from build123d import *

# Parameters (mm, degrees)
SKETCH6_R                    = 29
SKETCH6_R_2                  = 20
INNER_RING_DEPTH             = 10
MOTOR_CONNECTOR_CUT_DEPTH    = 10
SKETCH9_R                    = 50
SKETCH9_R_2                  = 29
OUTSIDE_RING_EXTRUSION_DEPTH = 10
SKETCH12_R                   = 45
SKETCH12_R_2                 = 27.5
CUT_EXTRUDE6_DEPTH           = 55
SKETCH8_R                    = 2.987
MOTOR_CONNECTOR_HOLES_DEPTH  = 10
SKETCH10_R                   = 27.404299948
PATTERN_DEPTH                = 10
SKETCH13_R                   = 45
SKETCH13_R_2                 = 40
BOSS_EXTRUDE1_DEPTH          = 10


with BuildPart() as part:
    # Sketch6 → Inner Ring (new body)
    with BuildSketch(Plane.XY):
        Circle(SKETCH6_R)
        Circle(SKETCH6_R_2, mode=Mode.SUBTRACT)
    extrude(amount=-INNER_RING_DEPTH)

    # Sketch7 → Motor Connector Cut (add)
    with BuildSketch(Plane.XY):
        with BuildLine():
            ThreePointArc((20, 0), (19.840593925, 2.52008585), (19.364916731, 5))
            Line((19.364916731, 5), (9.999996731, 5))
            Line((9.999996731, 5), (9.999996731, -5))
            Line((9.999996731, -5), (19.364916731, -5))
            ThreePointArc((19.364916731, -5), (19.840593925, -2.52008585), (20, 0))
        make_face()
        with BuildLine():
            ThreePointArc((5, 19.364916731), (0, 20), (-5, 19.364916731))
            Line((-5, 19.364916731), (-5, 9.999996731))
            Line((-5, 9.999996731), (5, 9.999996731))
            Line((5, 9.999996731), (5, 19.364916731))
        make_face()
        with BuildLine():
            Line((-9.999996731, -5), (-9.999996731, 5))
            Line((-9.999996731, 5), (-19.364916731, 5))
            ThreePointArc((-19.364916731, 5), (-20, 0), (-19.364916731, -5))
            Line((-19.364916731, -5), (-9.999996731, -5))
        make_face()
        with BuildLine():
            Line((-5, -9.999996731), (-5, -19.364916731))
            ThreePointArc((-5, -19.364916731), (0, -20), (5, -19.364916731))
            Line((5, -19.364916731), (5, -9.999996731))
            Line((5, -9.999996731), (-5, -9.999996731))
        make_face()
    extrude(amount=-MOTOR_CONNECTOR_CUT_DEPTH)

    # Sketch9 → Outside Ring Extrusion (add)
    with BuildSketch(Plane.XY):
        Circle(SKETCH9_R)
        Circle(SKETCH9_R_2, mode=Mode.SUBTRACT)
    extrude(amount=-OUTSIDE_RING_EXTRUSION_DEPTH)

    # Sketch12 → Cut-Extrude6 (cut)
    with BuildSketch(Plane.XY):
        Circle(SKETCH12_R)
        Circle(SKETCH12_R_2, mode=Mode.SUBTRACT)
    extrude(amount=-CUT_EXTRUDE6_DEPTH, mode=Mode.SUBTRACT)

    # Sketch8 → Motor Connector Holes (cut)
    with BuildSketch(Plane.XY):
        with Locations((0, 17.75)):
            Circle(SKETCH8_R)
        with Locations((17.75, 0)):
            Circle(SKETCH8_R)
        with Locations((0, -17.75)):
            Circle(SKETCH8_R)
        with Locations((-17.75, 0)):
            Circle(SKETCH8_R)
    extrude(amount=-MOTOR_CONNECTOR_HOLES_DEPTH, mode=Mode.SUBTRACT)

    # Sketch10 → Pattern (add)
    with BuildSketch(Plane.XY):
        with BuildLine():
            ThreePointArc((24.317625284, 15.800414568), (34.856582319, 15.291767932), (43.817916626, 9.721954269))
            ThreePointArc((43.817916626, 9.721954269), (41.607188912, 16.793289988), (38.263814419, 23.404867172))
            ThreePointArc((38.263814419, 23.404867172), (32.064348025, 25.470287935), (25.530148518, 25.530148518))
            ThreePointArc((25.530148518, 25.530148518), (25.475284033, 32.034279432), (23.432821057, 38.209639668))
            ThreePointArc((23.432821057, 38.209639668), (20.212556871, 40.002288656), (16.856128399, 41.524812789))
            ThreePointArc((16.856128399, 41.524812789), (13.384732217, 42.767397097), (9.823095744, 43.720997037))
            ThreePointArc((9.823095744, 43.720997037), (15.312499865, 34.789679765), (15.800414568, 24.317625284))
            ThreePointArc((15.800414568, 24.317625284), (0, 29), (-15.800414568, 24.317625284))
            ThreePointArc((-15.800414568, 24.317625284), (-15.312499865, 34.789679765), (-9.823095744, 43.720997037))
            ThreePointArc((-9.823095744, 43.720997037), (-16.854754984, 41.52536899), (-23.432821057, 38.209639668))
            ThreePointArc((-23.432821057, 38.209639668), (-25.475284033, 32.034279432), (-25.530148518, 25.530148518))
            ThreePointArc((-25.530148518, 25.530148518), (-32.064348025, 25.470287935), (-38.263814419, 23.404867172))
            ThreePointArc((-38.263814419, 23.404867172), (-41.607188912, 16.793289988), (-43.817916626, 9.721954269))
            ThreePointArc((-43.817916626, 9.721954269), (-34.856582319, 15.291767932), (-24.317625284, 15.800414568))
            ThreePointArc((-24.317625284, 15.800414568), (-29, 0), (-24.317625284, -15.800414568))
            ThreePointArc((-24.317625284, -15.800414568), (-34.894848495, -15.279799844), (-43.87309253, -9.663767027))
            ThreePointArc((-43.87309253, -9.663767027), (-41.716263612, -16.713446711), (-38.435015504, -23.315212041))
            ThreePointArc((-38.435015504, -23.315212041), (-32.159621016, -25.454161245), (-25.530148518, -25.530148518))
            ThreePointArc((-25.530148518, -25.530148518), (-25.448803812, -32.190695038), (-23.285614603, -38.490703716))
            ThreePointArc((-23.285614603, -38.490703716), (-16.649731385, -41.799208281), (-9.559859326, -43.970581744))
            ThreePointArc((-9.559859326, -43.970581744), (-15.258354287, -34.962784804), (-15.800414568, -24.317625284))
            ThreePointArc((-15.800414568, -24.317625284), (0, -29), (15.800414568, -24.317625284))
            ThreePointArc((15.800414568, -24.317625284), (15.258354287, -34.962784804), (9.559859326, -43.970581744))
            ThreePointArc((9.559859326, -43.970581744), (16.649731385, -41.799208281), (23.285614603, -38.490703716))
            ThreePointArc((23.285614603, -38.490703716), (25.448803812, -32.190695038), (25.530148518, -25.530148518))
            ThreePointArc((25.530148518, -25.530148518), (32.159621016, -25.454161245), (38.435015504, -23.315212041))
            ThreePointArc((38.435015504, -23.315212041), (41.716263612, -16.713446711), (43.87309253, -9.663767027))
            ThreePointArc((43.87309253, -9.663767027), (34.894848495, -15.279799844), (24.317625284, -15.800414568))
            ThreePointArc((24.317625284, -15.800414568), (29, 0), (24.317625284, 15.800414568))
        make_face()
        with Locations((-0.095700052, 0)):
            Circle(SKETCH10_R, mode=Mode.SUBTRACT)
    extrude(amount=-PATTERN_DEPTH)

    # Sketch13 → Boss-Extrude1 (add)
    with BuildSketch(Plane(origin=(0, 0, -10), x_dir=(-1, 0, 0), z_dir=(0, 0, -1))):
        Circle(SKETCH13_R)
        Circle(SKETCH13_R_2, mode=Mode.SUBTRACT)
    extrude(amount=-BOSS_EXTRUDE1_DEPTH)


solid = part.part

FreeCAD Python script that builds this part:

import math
import FreeCAD as App
import Part
import Sketcher
from FreeCAD import Vector
Q = App.Units.Quantity

doc = App.newDocument("Part")
body = doc.addObject("PartDesign::Body", "Body")
body.AllowCompound = True

# Sketch on XY plane
sketch1 = body.newObject("Sketcher::SketchObject", "Sketch")
sketch1.AttachmentSupport = (doc.getObject("XY_Plane"), [""])
sketch1.MapMode = "FlatFace"
sketch1.addGeometry([
    Part.Circle(Vector(0, 0, 0), Vector(0, 0, 1), 29),
    Part.Circle(Vector(0, 0, 0), Vector(0, 0, 1), 20),
], False)
sketch1.addConstraint([
    Sketcher.Constraint("Coincident", 0, 3, -1, 1),
    Sketcher.Constraint("Coincident", 1, 3, -1, 1),
    Sketcher.Constraint("Diameter", 0, Q("58 mm")),
    Sketcher.Constraint("Diameter", 1, Q("40 mm")),
])
pad1 = body.newObject("PartDesign::Pad", "Pad")
pad1.Profile = sketch1
pad1.Length = 10
pad1.Reversed = True

# Sketch on XY plane
sketch2 = body.newObject("Sketcher::SketchObject", "Sketch001")
sketch2.AttachmentSupport = (doc.getObject("XY_Plane"), [""])
sketch2.MapMode = "FlatFace"
sketch2.addGeometry([
    Part.ArcOfCircle(Part.Circle(Vector(0, 0, 0), Vector(0, 0, 1), 20), math.radians(0), math.radians(14.48)),  # 0
    Part.LineSegment(Vector(19, 5, 0), Vector(10, 5, 0)),  # 1
    Part.LineSegment(Vector(10, 5, 0), Vector(10, -5, 0)),  # 2
    Part.LineSegment(Vector(10, -5, 0), Vector(19, -5, 0)),  # 3
    Part.ArcOfCircle(Part.Circle(Vector(0, 0, 0), Vector(0, 0, 1), 20), math.radians(-14.48), math.radians(0)),  # 4
    Part.ArcOfCircle(Part.Circle(Vector(0, 0, 0), Vector(0, 0, 1), 20), math.radians(76), math.radians(104)),  # 5
    Part.LineSegment(Vector(-5, 19, 0), Vector(-5, 10, 0)),  # 6
    Part.LineSegment(Vector(-5, 10, 0), Vector(5, 10, 0)),  # 7
    Part.LineSegment(Vector(5, 10, 0), Vector(5, 19, 0)),  # 8
    Part.LineSegment(Vector(-10, -5, 0), Vector(-10, 5, 0)),  # 9
    Part.LineSegment(Vector(-10, 5, 0), Vector(-19, 5, 0)),  # 10
    Part.ArcOfCircle(Part.Circle(Vector(0, 0, 0), Vector(0, 0, 1), 20), math.radians(166), math.radians(194)),  # 11
    Part.LineSegment(Vector(-19, -5, 0), Vector(-10, -5, 0)),  # 12
    Part.LineSegment(Vector(-5, -10, 0), Vector(-5, -19, 0)),  # 13
    Part.ArcOfCircle(Part.Circle(Vector(0, 0, 0), Vector(0, 0, 1), 20), math.radians(-104), math.radians(-76)),  # 14
    Part.LineSegment(Vector(5, -19, 0), Vector(5, -10, 0)),  # 15
    Part.LineSegment(Vector(5, -10, 0), Vector(-5, -10, 0)),  # 16
], False)
sketch2.addConstraint([
    Sketcher.Constraint("Coincident", 0, 2, 1, 1),
    Sketcher.Constraint("Coincident", 1, 2, 2, 1),
    Sketcher.Constraint("Coincident", 2, 2, 3, 1),
    Sketcher.Constraint("Coincident", 3, 2, 4, 1),
    Sketcher.Constraint("Tangent", 4, 2, 0, 1),
    Sketcher.Constraint("Coincident", 5, 2, 6, 1),
    Sketcher.Constraint("Coincident", 6, 2, 7, 1),
    Sketcher.Constraint("Coincident", 7, 2, 8, 1),
    Sketcher.Constraint("Coincident", 8, 2, 5, 1),
    Sketcher.Constraint("Coincident", 9, 2, 10, 1),
    Sketcher.Constraint("Coincident", 10, 2, 11, 1),
    Sketcher.Constraint("Coincident", 11, 2, 12, 1),
    Sketcher.Constraint("Coincident", 12, 2, 9, 1),
    Sketcher.Constraint("Coincident", 13, 2, 14, 1),
    Sketcher.Constraint("Coincident", 14, 2, 15, 1),
    Sketcher.Constraint("Coincident", 15, 2, 16, 1),
    Sketcher.Constraint("Coincident", 16, 2, 13, 1),
    Sketcher.Constraint("Horizontal", 1),
    Sketcher.Constraint("Vertical", 2),
    Sketcher.Constraint("Horizontal", 3),
    Sketcher.Constraint("Vertical", 6),
    Sketcher.Constraint("Horizontal", 7),
    Sketcher.Constraint("Vertical", 8),
    Sketcher.Constraint("Vertical", 9),
    Sketcher.Constraint("Horizontal", 10),
    Sketcher.Constraint("Horizontal", 12),
    Sketcher.Constraint("Vertical", 13),
    Sketcher.Constraint("Vertical", 15),
    Sketcher.Constraint("Horizontal", 16),
    Sketcher.Constraint("Coincident", 0, 3, -1, 1),
    Sketcher.Constraint("Coincident", 5, 3, -1, 1),
    Sketcher.Constraint("Coincident", 11, 3, -1, 1),
    Sketcher.Constraint("Coincident", 14, 3, -1, 1),
    Sketcher.Constraint("Equal", 0, 4),
    Sketcher.Constraint("Equal", 4, 5),
    Sketcher.Constraint("Equal", 5, 11),
    Sketcher.Constraint("Equal", 11, 14),
    Sketcher.Constraint("Symmetric", 2, 2, 9, 2, -1, 1),
    Sketcher.Constraint("Symmetric", 6, 2, 15, 2, -1, 1),
    Sketcher.Constraint("PointOnObject", 4, 2, -1),
    Sketcher.Constraint("Horizontal", 5, 2, 8, 2),
    Sketcher.Constraint("Horizontal", 1, 2, 9, 2),
    Sketcher.Constraint("Horizontal", 3, 2, 11, 2),
    Sketcher.Constraint("Horizontal", 13, 2, 14, 2),
    Sketcher.Constraint("Equal", 16, 2),
    Sketcher.Constraint("Equal", 12, 6),
    Sketcher.Constraint("Radius", 0, Q("20 mm")),
    Sketcher.Constraint("DistanceX", 7, 1, 7, 2, Q("10 mm")),
    Sketcher.Constraint("DistanceX", 1, 2, 1, 1, Q("9.36492 mm")),
])
pad2 = body.newObject("PartDesign::Pad", "Pad001")
pad2.Profile = sketch2
pad2.Length = 10
pad2.Reversed = True

# Sketch on XY plane
sketch3 = body.newObject("Sketcher::SketchObject", "Sketch002")
sketch3.AttachmentSupport = (doc.getObject("XY_Plane"), [""])
sketch3.MapMode = "FlatFace"
sketch3.addGeometry([
    Part.Circle(Vector(0, 0, 0), Vector(0, 0, 1), 50),
    Part.Circle(Vector(0, 0, 0), Vector(0, 0, 1), 29),
], False)
sketch3.addConstraint([
    Sketcher.Constraint("Coincident", 0, 3, -1, 1),
    Sketcher.Constraint("Coincident", 1, 3, -1, 1),
    Sketcher.Constraint("Diameter", 0, Q("100 mm")),
    Sketcher.Constraint("Diameter", 1, Q("58 mm")),
])
pad3 = body.newObject("PartDesign::Pad", "Pad002")
pad3.Profile = sketch3
pad3.Length = 10
pad3.Reversed = True

# Sketch on XY plane
sketch4 = body.newObject("Sketcher::SketchObject", "Sketch003")
sketch4.AttachmentSupport = (doc.getObject("XY_Plane"), [""])
sketch4.MapMode = "FlatFace"
sketch4.addGeometry([
    Part.Circle(Vector(0, 0, 0), Vector(0, 0, 1), 45),
    Part.Circle(Vector(0, 0, 0), Vector(0, 0, 1), 28),
], False)
sketch4.addConstraint([
    Sketcher.Constraint("Coincident", 0, 3, -1, 1),
    Sketcher.Constraint("Coincident", 1, 3, -1, 1),
    Sketcher.Constraint("Diameter", 0, Q("90 mm")),
    Sketcher.Constraint("Diameter", 1, Q("55 mm")),
])
pocket1 = body.newObject("PartDesign::Pocket", "Pocket")
pocket1.Profile = sketch4
pocket1.Length = 55

# Sketch on XY plane
sketch5 = body.newObject("Sketcher::SketchObject", "Sketch004")
sketch5.AttachmentSupport = (doc.getObject("XY_Plane"), [""])
sketch5.MapMode = "FlatFace"
sketch5.addGeometry([
    Part.Circle(Vector(0, 17.8, 0), Vector(0, 0, 1), 3),
    Part.Circle(Vector(17.8, 0, 0), Vector(0, 0, 1), 3),
    Part.Circle(Vector(0, -17.8, 0), Vector(0, 0, 1), 3),
    Part.Circle(Vector(-17.8, 0, 0), Vector(0, 0, 1), 3),
], False)
sketch5.addConstraint([
    Sketcher.Constraint("Equal", 0, 1),
    Sketcher.Constraint("Equal", 1, 2),
    Sketcher.Constraint("Equal", 2, 3),
    Sketcher.Constraint("Symmetric", 0, 3, 2, 3, -1, 1),
    Sketcher.Constraint("Symmetric", 1, 3, 3, 3, -1, 1),
    Sketcher.Constraint("PointOnObject", 0, 3, -2),
    Sketcher.Constraint("PointOnObject", 1, 3, -1),
    Sketcher.Constraint("Diameter", 0, Q("5.974 mm")),
    Sketcher.Constraint("DistanceY", 2, 3, 0, 3, Q("35.5 mm")),
    Sketcher.Constraint("DistanceX", 3, 3, 1, 3, Q("35.5 mm")),
])
pocket2 = body.newObject("PartDesign::Pocket", "Pocket001")
pocket2.Profile = sketch5
pocket2.Length = 10

# Sketch on XY plane
sketch6 = body.newObject("Sketcher::SketchObject", "Sketch005")
sketch6.AttachmentSupport = (doc.getObject("XY_Plane"), [""])
sketch6.MapMode = "FlatFace"
sketch6.addGeometry([
    Part.ArcOfCircle(Part.Circle(Vector(29, -5, 0), Vector(0, 0, 1), 21), math.radians(44), math.radians(102)),  # 0
    Part.ArcOfCircle(Part.Circle(Vector(0, 0, 0), Vector(0, 0, 1), 45), math.radians(12.63), math.radians(31.56)),  # 1
    Part.ArcOfCircle(Part.Circle(Vector(29, 5, 0), Vector(0, 0, 1), 21), math.radians(63), math.radians(98)),  # 2
    Part.ArcOfCircle(Part.Circle(Vector(5, 29, 0), Vector(0, 0, 1), 21), math.radians(-8), math.radians(27)),  # 3
    Part.ArcOfCircle(Part.Circle(Vector(0, 0, 0), Vector(0, 0, 1), 45), math.radians(58.54), math.radians(67.95)),  # 4
    Part.ArcOfCircle(Part.Circle(Vector(0, 0, 0), Vector(0, 0, 1), 45), math.radians(67.95), math.radians(77.36)),  # 5
    Part.ArcOfCircle(Part.Circle(Vector(-5, 29, 0), Vector(0, 0, 1), 21), math.radians(-12), math.radians(46)),  # 6
    Part.ArcOfCircle(Part.Circle(Vector(0, 0, 0), Vector(0, 0, 1), 29), math.radians(57), math.radians(123)),  # 7
    Part.ArcOfCircle(Part.Circle(Vector(5, 29, 0), Vector(0, 0, 1), 21), math.radians(134), math.radians(192)),  # 8
    Part.ArcOfCircle(Part.Circle(Vector(0, 0, 0), Vector(0, 0, 1), 45), math.radians(102.64), math.radians(121.46)),  # 9
    Part.ArcOfCircle(Part.Circle(Vector(-5, 29, 0), Vector(0, 0, 1), 21), math.radians(153), math.radians(188)),  # 10
    Part.ArcOfCircle(Part.Circle(Vector(-29, 5, 0), Vector(0, 0, 1), 21), math.radians(82), math.radians(117)),  # 11
    Part.ArcOfCircle(Part.Circle(Vector(0, 0, 0), Vector(0, 0, 1), 45), math.radians(148.44), math.radians(167.37)),  # 12
    Part.ArcOfCircle(Part.Circle(Vector(-29, -5, 0), Vector(0, 0, 1), 21), math.radians(78), math.radians(136)),  # 13
    Part.ArcOfCircle(Part.Circle(Vector(0, 0, 0), Vector(0, 0, 1), 29), math.radians(147), math.radians(213)),  # 14
    Part.ArcOfCircle(Part.Circle(Vector(-29, 5, 0), Vector(0, 0, 1), 21), math.radians(-137), math.radians(-78)),  # 15
    Part.ArcOfCircle(Part.Circle(Vector(0, 0, 0), Vector(0, 0, 1), 45), math.radians(-167.7), math.radians(-148.86)),  # 16
    Part.ArcOfCircle(Part.Circle(Vector(-29, -5, 0), Vector(0, 0, 1), 21), math.radians(-118), math.radians(-82)),  # 17
    Part.ArcOfCircle(Part.Circle(Vector(-5, -29, 0), Vector(0, 0, 1), 21), math.radians(172), math.radians(208)),  # 18
    Part.ArcOfCircle(Part.Circle(Vector(0, 0, 0), Vector(0, 0, 1), 45), math.radians(-121.24), math.radians(-102.29)),  # 19
    Part.ArcOfCircle(Part.Circle(Vector(5, -29, 0), Vector(0, 0, 1), 21), math.radians(168), math.radians(227)),  # 20
    Part.ArcOfCircle(Part.Circle(Vector(0, 0, 0), Vector(0, 0, 1), 29), math.radians(-123), math.radians(-57)),  # 21
    Part.ArcOfCircle(Part.Circle(Vector(-5, -29, 0), Vector(0, 0, 1), 21), math.radians(-47), math.radians(12)),  # 22
    Part.ArcOfCircle(Part.Circle(Vector(0, 0, 0), Vector(0, 0, 1), 45), math.radians(-77.71), math.radians(-58.76)),  # 23
    Part.ArcOfCircle(Part.Circle(Vector(5, -29, 0), Vector(0, 0, 1), 21), math.radians(-28), math.radians(8)),  # 24
    Part.ArcOfCircle(Part.Circle(Vector(29, -5, 0), Vector(0, 0, 1), 21), math.radians(-98), math.radians(-62)),  # 25
    Part.ArcOfCircle(Part.Circle(Vector(0, 0, 0), Vector(0, 0, 1), 45), math.radians(-31.14), math.radians(-12.3)),  # 26
    Part.ArcOfCircle(Part.Circle(Vector(29, 5, 0), Vector(0, 0, 1), 21), math.radians(-102), math.radians(-43)),  # 27
    Part.ArcOfCircle(Part.Circle(Vector(0, 0, 0), Vector(0, 0, 1), 29), math.radians(-33), math.radians(33)),  # 28
    Part.Circle(Vector(0, 0, 0), Vector(0, 0, 1), 27),  # 29
], False)
sketch6.addConstraint([
    Sketcher.Constraint("Coincident", 0, 1, 1, 1),
    Sketcher.Constraint("Coincident", 1, 2, 2, 1),
    Sketcher.Constraint("Coincident", 2, 2, 3, 1),
    Sketcher.Constraint("Coincident", 3, 2, 4, 1),
    Sketcher.Constraint("Tangent", 4, 2, 5, 1),
    Sketcher.Constraint("Coincident", 5, 2, 6, 2),
    Sketcher.Constraint("Coincident", 6, 1, 7, 1),
    Sketcher.Constraint("Coincident", 7, 2, 8, 2),
    Sketcher.Constraint("Coincident", 8, 1, 9, 1),
    Sketcher.Constraint("Coincident", 9, 2, 10, 1),
    Sketcher.Constraint("Coincident", 10, 2, 11, 1),
    Sketcher.Constraint("Coincident", 11, 2, 12, 1),
    Sketcher.Constraint("Coincident", 12, 2, 13, 2),
    Sketcher.Constraint("Coincident", 13, 1, 14, 1),
    Sketcher.Constraint("Coincident", 14, 2, 15, 2),
    Sketcher.Constraint("Coincident", 15, 1, 16, 1),
    Sketcher.Constraint("Coincident", 16, 2, 17, 1),
    Sketcher.Constraint("Coincident", 17, 2, 18, 1),
    Sketcher.Constraint("Coincident", 18, 2, 19, 1),
    Sketcher.Constraint("Coincident", 19, 2, 20, 2),
    Sketcher.Constraint("Coincident", 20, 1, 21, 1),
    Sketcher.Constraint("Coincident", 21, 2, 22, 2),
    Sketcher.Constraint("Coincident", 22, 1, 23, 1),
    Sketcher.Constraint("Coincident", 23, 2, 24, 1),
    Sketcher.Constraint("Coincident", 24, 2, 25, 1),
    Sketcher.Constraint("Coincident", 25, 2, 26, 1),
    Sketcher.Constraint("Coincident", 26, 2, 27, 2),
    Sketcher.Constraint("Coincident", 27, 1, 28, 1),
    Sketcher.Constraint("Coincident", 28, 2, 0, 2),
    Sketcher.Constraint("Coincident", 7, 3, -1, 1),
    Sketcher.Constraint("Coincident", 14, 3, -1, 1),
    Sketcher.Constraint("Coincident", 21, 3, -1, 1),
    Sketcher.Constraint("Coincident", 28, 3, -1, 1),
    Sketcher.Constraint("Coincident", 4, 3, 1, 3),
    Sketcher.Constraint("Coincident", 8, 3, 3, 3),
    Sketcher.Constraint("Coincident", 9, 3, 1, 3),
    Sketcher.Constraint("Coincident", 10, 3, 6, 3),
    Sketcher.Constraint("Coincident", 12, 3, 1, 3),
    Sketcher.Constraint("Coincident", 15, 3, 11, 3),
    Sketcher.Constraint("Coincident", 16, 3, 1, 3),
    Sketcher.Constraint("Coincident", 17, 3, 13, 3),
    Sketcher.Constraint("Coincident", 19, 3, 1, 3),
    Sketcher.Constraint("Coincident", 22, 3, 18, 3),
    Sketcher.Constraint("Coincident", 23, 3, 1, 3),
    Sketcher.Constraint("Coincident", 24, 3, 20, 3),
    Sketcher.Constraint("Coincident", 25, 3, 0, 3),
    Sketcher.Constraint("Coincident", 26, 3, 1, 3),
    Sketcher.Constraint("Coincident", 27, 3, 2, 3),
    Sketcher.Constraint("Equal", 0, 2),
    Sketcher.Constraint("Equal", 2, 3),
    Sketcher.Constraint("Equal", 1, 4),
    Sketcher.Constraint("Equal", 4, 5),
    Sketcher.Constraint("Equal", 3, 6),
    Sketcher.Constraint("Equal", 6, 8),
    Sketcher.Constraint("Equal", 5, 9),
    Sketcher.Constraint("Equal", 8, 10),
    Sketcher.Constraint("Equal", 10, 11),
    Sketcher.Constraint("Equal", 9, 12),
    Sketcher.Constraint("Equal", 11, 13),
    Sketcher.Constraint("Equal", 7, 14),
    Sketcher.Constraint("Equal", 13, 15),
    Sketcher.Constraint("Equal", 12, 16),
    Sketcher.Constraint("Equal", 15, 17),
    Sketcher.Constraint("Equal", 17, 18),
    Sketcher.Constraint("Equal", 16, 19),
    Sketcher.Constraint("Equal", 18, 20),
    Sketcher.Constraint("Equal", 14, 21),
    Sketcher.Constraint("Equal", 20, 22),
    Sketcher.Constraint("Equal", 19, 23),
    Sketcher.Constraint("Equal", 22, 24),
    Sketcher.Constraint("Equal", 24, 25),
    Sketcher.Constraint("Equal", 23, 26),
    Sketcher.Constraint("Equal", 25, 27),
    Sketcher.Constraint("Equal", 21, 28),
    Sketcher.Constraint("Symmetric", 0, 3, 11, 3, -1, 1),
    Sketcher.Constraint("Symmetric", 2, 3, 13, 3, -1, 1),
    Sketcher.Constraint("Symmetric", 3, 3, 18, 3, -1, 1),
    Sketcher.Constraint("Symmetric", 6, 3, 20, 3, -1, 1),
    Sketcher.Constraint("Symmetric", 3, 3, 6, 3, -2),
    Sketcher.Constraint("Symmetric", 2, 3, 11, 3, -2),
    Sketcher.Constraint("PointOnObject", 1, 3, -2),
    Sketcher.Constraint("PointOnObject", 29, 3, -1),
    Sketcher.Constraint("Radius", 0, Q("21 mm")),
    Sketcher.Constraint("Radius", 7, Q("29 mm")),
    Sketcher.Constraint("Diameter", 29, Q("54.8086 mm")),
    Sketcher.Constraint("Radius", 1, Q("44.9043 mm")),
    Sketcher.Constraint("DistanceY", 1, 3, -1, 1, Q("0.0957 mm")),
    Sketcher.Constraint("DistanceX", 29, 3, -1, 1, Q("0.0957 mm")),
    Sketcher.Constraint("DistanceX", 27, 3, 0, 1, Q("15.210701 mm")),
    Sketcher.Constraint("DistanceX", 2, 3, 1, 2, Q("9.656599 mm")),
    Sketcher.Constraint("DistanceX", 11, 3, 7, 2, Q("12.806801 mm")),
    Sketcher.Constraint("DistanceY", 22, 3, 14, 2, Q("12.806801 mm")),
    Sketcher.Constraint("DistanceX", -1, 1, 4, 2, Q("16.856128 mm")),
])
pad4 = body.newObject("PartDesign::Pad", "Pad003")
pad4.Profile = sketch6
pad4.Length = 10
pad4.Reversed = True

# Sketch on XY plane
sketch7 = body.newObject("Sketcher::SketchObject", "Sketch006")
sketch7.AttachmentSupport = (doc.getObject("XY_Plane"), [""])
sketch7.MapMode = "FlatFace"
sketch7.AttachmentOffset = App.Placement(Vector(0, 0, -10), App.Rotation())
sketch7.addGeometry([
    Part.Circle(Vector(0, 0, 0), Vector(0, 0, 1), 45),
    Part.Circle(Vector(0, 0, 0), Vector(0, 0, 1), 40),
], False)
sketch7.addConstraint([
    Sketcher.Constraint("Coincident", 0, 3, -1, 1),
    Sketcher.Constraint("Coincident", 1, 3, -1, 1),
    Sketcher.Constraint("Diameter", 0, Q("90 mm")),
    Sketcher.Constraint("Diameter", 1, Q("80 mm")),
])
pad5 = body.newObject("PartDesign::Pad", "Pad004")
pad5.Profile = sketch7
pad5.Length = 10

doc.recompute()
